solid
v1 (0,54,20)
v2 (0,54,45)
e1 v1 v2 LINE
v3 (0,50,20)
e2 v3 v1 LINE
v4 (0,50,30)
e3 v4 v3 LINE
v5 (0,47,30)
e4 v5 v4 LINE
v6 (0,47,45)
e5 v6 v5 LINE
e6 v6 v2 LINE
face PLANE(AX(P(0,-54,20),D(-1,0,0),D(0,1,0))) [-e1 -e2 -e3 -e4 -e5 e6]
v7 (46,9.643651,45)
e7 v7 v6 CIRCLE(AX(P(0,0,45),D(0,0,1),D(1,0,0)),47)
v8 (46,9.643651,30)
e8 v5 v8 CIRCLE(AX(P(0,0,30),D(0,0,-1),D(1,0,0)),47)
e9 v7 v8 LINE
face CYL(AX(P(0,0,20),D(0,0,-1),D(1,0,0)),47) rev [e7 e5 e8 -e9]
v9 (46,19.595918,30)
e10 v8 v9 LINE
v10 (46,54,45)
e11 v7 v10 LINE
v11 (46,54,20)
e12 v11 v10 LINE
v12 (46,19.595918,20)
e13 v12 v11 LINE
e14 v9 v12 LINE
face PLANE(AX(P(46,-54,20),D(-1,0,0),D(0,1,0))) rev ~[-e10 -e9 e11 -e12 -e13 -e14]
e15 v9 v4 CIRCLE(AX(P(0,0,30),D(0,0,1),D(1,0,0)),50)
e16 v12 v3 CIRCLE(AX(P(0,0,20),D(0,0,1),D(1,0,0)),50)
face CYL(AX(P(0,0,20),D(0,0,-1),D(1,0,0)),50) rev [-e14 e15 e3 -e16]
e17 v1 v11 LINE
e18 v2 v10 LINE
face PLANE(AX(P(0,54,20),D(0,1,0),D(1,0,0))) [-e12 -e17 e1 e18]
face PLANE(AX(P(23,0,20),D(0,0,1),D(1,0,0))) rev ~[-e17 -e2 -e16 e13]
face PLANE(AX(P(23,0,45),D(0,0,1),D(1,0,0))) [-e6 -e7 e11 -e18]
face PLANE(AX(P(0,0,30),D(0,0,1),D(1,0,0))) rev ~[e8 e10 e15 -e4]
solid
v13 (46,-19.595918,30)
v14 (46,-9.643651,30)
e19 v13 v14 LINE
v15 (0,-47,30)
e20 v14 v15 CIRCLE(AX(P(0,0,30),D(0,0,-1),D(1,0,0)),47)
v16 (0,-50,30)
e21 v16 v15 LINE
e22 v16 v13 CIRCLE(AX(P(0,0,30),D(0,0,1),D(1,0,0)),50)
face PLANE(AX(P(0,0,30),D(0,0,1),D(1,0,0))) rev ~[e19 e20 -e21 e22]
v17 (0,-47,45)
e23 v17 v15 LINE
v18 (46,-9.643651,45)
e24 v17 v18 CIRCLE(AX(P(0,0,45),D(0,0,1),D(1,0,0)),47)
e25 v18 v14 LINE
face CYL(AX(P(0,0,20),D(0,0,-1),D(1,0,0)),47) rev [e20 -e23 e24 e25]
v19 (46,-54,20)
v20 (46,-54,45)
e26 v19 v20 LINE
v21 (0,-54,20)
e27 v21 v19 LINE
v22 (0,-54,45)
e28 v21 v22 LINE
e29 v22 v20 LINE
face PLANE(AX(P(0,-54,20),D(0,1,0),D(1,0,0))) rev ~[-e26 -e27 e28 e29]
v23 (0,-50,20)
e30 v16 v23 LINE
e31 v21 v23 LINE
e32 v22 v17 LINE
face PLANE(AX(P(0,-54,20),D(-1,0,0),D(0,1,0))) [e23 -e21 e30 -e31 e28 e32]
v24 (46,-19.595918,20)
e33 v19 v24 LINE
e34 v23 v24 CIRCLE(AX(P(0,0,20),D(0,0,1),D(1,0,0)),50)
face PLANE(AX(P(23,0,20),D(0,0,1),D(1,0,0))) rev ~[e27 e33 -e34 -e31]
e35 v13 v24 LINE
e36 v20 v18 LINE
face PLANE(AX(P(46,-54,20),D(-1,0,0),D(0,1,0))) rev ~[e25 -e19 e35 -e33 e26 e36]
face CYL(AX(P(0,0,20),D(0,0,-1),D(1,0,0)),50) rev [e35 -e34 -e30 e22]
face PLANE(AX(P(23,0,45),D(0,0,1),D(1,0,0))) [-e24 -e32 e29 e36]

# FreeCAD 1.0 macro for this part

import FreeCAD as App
import Part
import Sketcher
from FreeCAD import Vector


def add_polygon(sketch, points):
    """Adds a closed chain of lines whose ends are joined by coincident constraints."""
    first, n = sketch.GeometryCount, len(points)
    for a, b in zip(points, points[1:] + points[:1]):
        sketch.addGeometry(Part.LineSegment(App.Vector(*a, 0), App.Vector(*b, 0)), False)
    for i in range(n):
        sketch.addConstraint(Sketcher.Constraint("Coincident", first + i, 2, first + (i + 1) % n, 1))

doc = App.newDocument("Part")
body = doc.addObject("PartDesign::Body", "Body")

sketch1 = body.newObject("Sketcher::SketchObject", "Sketch")
sketch1.AttachmentSupport = (doc.getObject("XY_Plane"), [""])
sketch1.MapMode = "FlatFace"
sketch1.AttachmentOffset = App.Placement(Vector(0, 0, 20), App.Rotation())
sketch1.addGeometry(Part.Circle(Vector(0, 0, 0), Vector(0, 0, 1), 50), False)
sketch1.addGeometry(Part.Circle(Vector(0, 0, 0), Vector(0, 0, 1), 40), False)
sketch1.addConstraint(Sketcher.Constraint("Coincident", 0, 3, -1, 1))
sketch1.addConstraint(Sketcher.Constraint("Coincident", 1, 3, -1, 1))
sketch1.addConstraint(Sketcher.Constraint("Diameter", 0, 100.0))
sketch1.addConstraint(Sketcher.Constraint("Diameter", 1, 80.0))
pad1 = body.newObject("PartDesign::Pad", "Pad")
pad1.Profile = sketch1
pad1.Length = 10
body2 = doc.addObject("PartDesign::Body", "Body001")

sketch2 = body2.newObject("Sketcher::SketchObject", "Sketch001")
sketch2.AttachmentSupport = (doc.getObject("XY_Plane001"), [""])
sketch2.MapMode = "FlatFace"
sketch2.AttachmentOffset = App.Placement(Vector(0, 0, 20), App.Rotation())
sketch2.addGeometry(Part.Circle(Vector(0, 0, 0), Vector(0, 0, 1), 47), False)
sketch2.addConstraint(Sketcher.Constraint("Coincident", 0, 3, -1, 1))
sketch2.addConstraint(Sketcher.Constraint("Diameter", 0, 94.0))
pad2 = body2.newObject("PartDesign::Pad", "Pad001")
pad2.Profile = sketch2
pad2.Length = 25
body3 = doc.addObject("PartDesign::Body", "Body002")
body3.AllowCompound = True

sketch3 = body3.newObject("Sketcher::SketchObject", "Sketch002")
sketch3.AttachmentSupport = (doc.getObject("XY_Plane002"), [""])
sketch3.MapMode = "FlatFace"
sketch3.AttachmentOffset = App.Placement(Vector(0, 0, 20), App.Rotation())
add_polygon(sketch3, [(0, 54), (0, -54), (46, -54), (46, 54)])
sketch3.addConstraint(Sketcher.Constraint("Vertical", 0))
sketch3.addConstraint(Sketcher.Constraint("Horizontal", 1))
sketch3.addConstraint(Sketcher.Constraint("Vertical", 2))
sketch3.addConstraint(Sketcher.Constraint("Horizontal", 3))
sketch3.addConstraint(Sketcher.Constraint("Symmetric", 0, 2, 3, 2, -1, 1))
sketch3.addConstraint(Sketcher.Constraint("DistanceX", 1, 1, 1, 2, 46.0))
sketch3.addConstraint(Sketcher.Constraint("DistanceY", 0, 2, 0, 1, 108.0))
pad3 = body3.newObject("PartDesign::Pad", "Pad002")
pad3.Profile = sketch3
pad3.Length = 25
doc.recompute()

boolean = body3.newObject("PartDesign::Boolean", "Boolean")
boolean.Type = "Cut"
boolean.addObjects([body2])
doc.recompute()

boolean2 = body3.newObject("PartDesign::Boolean", "Boolean001")
boolean2.Type = "Cut"
boolean2.addObjects([body])

doc.recompute()
